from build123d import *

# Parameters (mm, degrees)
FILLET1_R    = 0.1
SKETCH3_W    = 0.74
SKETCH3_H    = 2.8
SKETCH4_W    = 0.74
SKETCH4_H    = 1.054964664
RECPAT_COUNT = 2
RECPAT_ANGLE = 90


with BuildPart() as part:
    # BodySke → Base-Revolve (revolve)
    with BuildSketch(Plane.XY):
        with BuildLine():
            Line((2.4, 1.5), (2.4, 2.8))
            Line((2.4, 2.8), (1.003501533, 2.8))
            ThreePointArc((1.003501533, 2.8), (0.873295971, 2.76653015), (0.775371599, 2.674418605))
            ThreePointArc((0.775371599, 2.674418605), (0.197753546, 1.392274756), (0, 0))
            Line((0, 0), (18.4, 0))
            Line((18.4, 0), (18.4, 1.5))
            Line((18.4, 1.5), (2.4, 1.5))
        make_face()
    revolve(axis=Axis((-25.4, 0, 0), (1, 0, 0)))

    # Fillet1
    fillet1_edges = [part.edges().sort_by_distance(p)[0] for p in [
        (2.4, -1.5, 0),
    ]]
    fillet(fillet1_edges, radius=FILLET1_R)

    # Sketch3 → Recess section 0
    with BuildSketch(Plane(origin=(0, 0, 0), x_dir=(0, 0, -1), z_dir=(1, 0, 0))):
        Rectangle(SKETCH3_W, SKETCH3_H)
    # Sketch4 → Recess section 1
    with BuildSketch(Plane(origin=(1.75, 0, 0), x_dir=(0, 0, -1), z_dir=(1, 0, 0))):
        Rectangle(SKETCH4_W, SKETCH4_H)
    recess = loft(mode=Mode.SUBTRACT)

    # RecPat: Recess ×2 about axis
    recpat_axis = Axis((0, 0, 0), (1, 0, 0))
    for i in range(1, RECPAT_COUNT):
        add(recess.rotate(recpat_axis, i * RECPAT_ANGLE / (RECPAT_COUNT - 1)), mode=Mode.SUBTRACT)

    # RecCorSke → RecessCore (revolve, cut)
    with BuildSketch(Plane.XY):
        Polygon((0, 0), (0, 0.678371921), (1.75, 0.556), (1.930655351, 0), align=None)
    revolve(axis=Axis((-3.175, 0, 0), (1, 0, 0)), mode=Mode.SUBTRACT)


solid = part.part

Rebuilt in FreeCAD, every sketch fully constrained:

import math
import FreeCAD as App
import Part
import Sketcher
Q = App.Units.Quantity


def edges_at(feature, points):
    """Names of the edges that pass closest to the given points."""
    edges = feature.Shape.Edges
    near = lambda p: min(range(len(edges)), key=lambda i: edges[i].distToShape(Part.Vertex(*p))[0])
    return sorted({f"Edge{near(p) + 1}" for p in points})


def add_polygon(sketch, points):
    """Adds a closed chain of lines whose ends are joined by coincident constraints."""
    first, n = sketch.GeometryCount, len(points)
    for a, b in zip(points, points[1:] + points[:1]):
        sketch.addGeometry(Part.LineSegment(App.Vector(*a, 0), App.Vector(*b, 0)), False)
    for i in range(n):
        sketch.addConstraint(Sketcher.Constraint("Coincident", first + i, 2, first + (i + 1) % n, 1))

doc = App.newDocument("Part")
body = doc.addObject("PartDesign::Body", "Body")

# Sketch on XY plane
sketch1 = body.newObject("Sketcher::SketchObject", "Sketch")
sketch1.AttachmentSupport = (doc.getObject("XY_Plane"), [""])
sketch1.MapMode = "FlatFace"
sketch1.addGeometry([
    Part.LineSegment(App.Vector(2.4, 1.5, 0), App.Vector(2.4, 2.8, 0)),  # 0
    Part.LineSegment(App.Vector(2.4, 2.8, 0), App.Vector(1, 2.8, 0)),  # 1
    Part.ArcOfCircle(Part.Circle(App.Vector(1, 2.53, 0), App.Vector(0, 0, 1), 0.27), math.radians(90), math.radians(148)),  # 2
    Part.ArcOfCircle(Part.Circle(App.Vector(5, 0, 0), App.Vector(0, 0, 1), 5), math.radians(148), math.radians(180)),  # 3
    Part.LineSegment(App.Vector(0, 0, 0), App.Vector(18.4, 0, 0)),  # 4
    Part.LineSegment(App.Vector(18.4, 0, 0), App.Vector(18.4, 1.5, 0)),  # 5
    Part.LineSegment(App.Vector(18.4, 1.5, 0), App.Vector(2.4, 1.5, 0)),  # 6
], False)
sketch1.addConstraint([
    Sketcher.Constraint("Coincident", 0, 2, 1, 1),
    Sketcher.Constraint("Tangent", 1, 2, 2, 1),
    Sketcher.Constraint("Tangent", 2, 2, 3, 1),
    Sketcher.Constraint("Coincident", 3, 2, 4, 1),
    Sketcher.Constraint("Coincident", 4, 2, 5, 1),
    Sketcher.Constraint("Coincident", 5, 2, 6, 1),
    Sketcher.Constraint("Coincident", 6, 2, 0, 1),
    Sketcher.Constraint("Vertical", 0),
    Sketcher.Constraint("Horizontal", 1),
    Sketcher.Constraint("Horizontal", 4),
    Sketcher.Constraint("Vertical", 5),
    Sketcher.Constraint("Horizontal", 6),
    Sketcher.Constraint("Coincident", 3, 2, -1, 1),
    Sketcher.Constraint("PointOnObject", 3, 3, -1),
    Sketcher.Constraint("Radius", 3, Q("5 mm")),
    Sketcher.Constraint("DistanceX", 6, 2, 6, 1, Q("16 mm")),
    Sketcher.Constraint("Radius", 2, Q("0.27 mm")),
    Sketcher.Constraint("DistanceX", 4, 1, 4, 2, Q("18.4 mm")),
    Sketcher.Constraint("DistanceY", 0, 1, 0, 2, Q("1.3 mm")),
    Sketcher.Constraint("DistanceY", 5, 1, 5, 2, Q("1.5 mm")),
])
revolution = body.newObject("PartDesign::Revolution", "Revolution")
revolution.Profile = sketch1
revolution.ReferenceAxis = (sketch1, ["H_Axis"])
revolution.Angle = 360
doc.recompute()

fillet = body.newObject("PartDesign::Fillet", "Fillet")
fillet.Base = (revolution, edges_at(revolution, [(2.4, -1.5, 0)]))
fillet.Radius = 0.1

# Sketch on YZ plane
sketch2 = body.newObject("Sketcher::SketchObject", "Sketch001")
sketch2.AttachmentSupport = (doc.getObject("YZ_Plane"), [""])
sketch2.MapMode = "FlatFace"
add_polygon(sketch2, [(1.4, 0.4), (-1.4, 0.4), (-1.4, -0.4), (1.4, -0.4)])  # lines 0-3
sketch2.addConstraint([
    Sketcher.Constraint("Horizontal", 0),
    Sketcher.Constraint("Vertical", 1),
    Sketcher.Constraint("Horizontal", 2),
    Sketcher.Constraint("Vertical", 3),
    Sketcher.Constraint("Symmetric", 0, 2, 2, 2, -1, 1),
    Sketcher.Constraint("DistanceX", 0, 2, 0, 1, Q("2.8 mm")),
    Sketcher.Constraint("DistanceY", 1, 2, 1, 1, Q("0.74 mm")),
])

# Sketch on YZ plane
sketch3 = body.newObject("Sketcher::SketchObject", "Sketch002")
sketch3.AttachmentSupport = (doc.getObject("YZ_Plane"), [""])
sketch3.MapMode = "FlatFace"
sketch3.AttachmentOffset = App.Placement(App.Vector(0, 0, 1.75), App.Rotation())
add_polygon(sketch3, [(0.5, 0.4), (-0.5, 0.4), (-0.5, -0.4), (0.5, -0.4)])  # lines 0-3
sketch3.addConstraint([
    Sketcher.Constraint("Horizontal", 0),
    Sketcher.Constraint("Vertical", 1),
    Sketcher.Constraint("Horizontal", 2),
    Sketcher.Constraint("Vertical", 3),
    Sketcher.Constraint("Symmetric", 0, 2, 2, 2, -1, 1),
    Sketcher.Constraint("DistanceY", 1, 2, 1, 1, Q("0.74 mm")),
    Sketcher.Constraint("DistanceX", 0, 2, 0, 1, Q("1.054965 mm")),
])

subtractiveloft = body.newObject("PartDesign::SubtractiveLoft", "SubtractiveLoft")
subtractiveloft.Profile = sketch2
subtractiveloft.Sections = [sketch3]
doc.recompute()

polarpattern = body.newObject("PartDesign::PolarPattern", "PolarPattern")
polarpattern.Originals = [subtractiveloft]
polarpattern.Axis = (doc.getObject("X_Axis"), [""])
polarpattern.Angle = 90
polarpattern.Occurrences = 2
body.Tip = polarpattern

# Sketch on XY plane
sketch4 = body.newObject("Sketcher::SketchObject", "Sketch003")
sketch4.AttachmentSupport = (doc.getObject("XY_Plane"), [""])
sketch4.MapMode = "FlatFace"
add_polygon(sketch4, [(0, 0.7), (0, 0), (1.9, 0), (1.8, 0.6)])  # lines 0-3
sketch4.addConstraint([
    Sketcher.Constraint("Vertical", 0),
    Sketcher.Constraint("Horizontal", 1),
    Sketcher.Constraint("Coincident", 0, 2, -1, 1),
    Sketcher.Constraint("Angle", 2, Q("108 deg")),
    Sketcher.Constraint("Angle", 3, Q("176 deg")),
    Sketcher.Constraint("DistanceX", -1, 1, 2, 2, Q("1.75 mm")),
    Sketcher.Constraint("DistanceY", -1, 1, 2, 2, Q("0.556 mm")),
])
groove = body.newObject("PartDesign::Groove", "Groove")
groove.Profile = sketch4
groove.ReferenceAxis = (sketch4, ["H_Axis"])
groove.Angle = 360

doc.recompute()
